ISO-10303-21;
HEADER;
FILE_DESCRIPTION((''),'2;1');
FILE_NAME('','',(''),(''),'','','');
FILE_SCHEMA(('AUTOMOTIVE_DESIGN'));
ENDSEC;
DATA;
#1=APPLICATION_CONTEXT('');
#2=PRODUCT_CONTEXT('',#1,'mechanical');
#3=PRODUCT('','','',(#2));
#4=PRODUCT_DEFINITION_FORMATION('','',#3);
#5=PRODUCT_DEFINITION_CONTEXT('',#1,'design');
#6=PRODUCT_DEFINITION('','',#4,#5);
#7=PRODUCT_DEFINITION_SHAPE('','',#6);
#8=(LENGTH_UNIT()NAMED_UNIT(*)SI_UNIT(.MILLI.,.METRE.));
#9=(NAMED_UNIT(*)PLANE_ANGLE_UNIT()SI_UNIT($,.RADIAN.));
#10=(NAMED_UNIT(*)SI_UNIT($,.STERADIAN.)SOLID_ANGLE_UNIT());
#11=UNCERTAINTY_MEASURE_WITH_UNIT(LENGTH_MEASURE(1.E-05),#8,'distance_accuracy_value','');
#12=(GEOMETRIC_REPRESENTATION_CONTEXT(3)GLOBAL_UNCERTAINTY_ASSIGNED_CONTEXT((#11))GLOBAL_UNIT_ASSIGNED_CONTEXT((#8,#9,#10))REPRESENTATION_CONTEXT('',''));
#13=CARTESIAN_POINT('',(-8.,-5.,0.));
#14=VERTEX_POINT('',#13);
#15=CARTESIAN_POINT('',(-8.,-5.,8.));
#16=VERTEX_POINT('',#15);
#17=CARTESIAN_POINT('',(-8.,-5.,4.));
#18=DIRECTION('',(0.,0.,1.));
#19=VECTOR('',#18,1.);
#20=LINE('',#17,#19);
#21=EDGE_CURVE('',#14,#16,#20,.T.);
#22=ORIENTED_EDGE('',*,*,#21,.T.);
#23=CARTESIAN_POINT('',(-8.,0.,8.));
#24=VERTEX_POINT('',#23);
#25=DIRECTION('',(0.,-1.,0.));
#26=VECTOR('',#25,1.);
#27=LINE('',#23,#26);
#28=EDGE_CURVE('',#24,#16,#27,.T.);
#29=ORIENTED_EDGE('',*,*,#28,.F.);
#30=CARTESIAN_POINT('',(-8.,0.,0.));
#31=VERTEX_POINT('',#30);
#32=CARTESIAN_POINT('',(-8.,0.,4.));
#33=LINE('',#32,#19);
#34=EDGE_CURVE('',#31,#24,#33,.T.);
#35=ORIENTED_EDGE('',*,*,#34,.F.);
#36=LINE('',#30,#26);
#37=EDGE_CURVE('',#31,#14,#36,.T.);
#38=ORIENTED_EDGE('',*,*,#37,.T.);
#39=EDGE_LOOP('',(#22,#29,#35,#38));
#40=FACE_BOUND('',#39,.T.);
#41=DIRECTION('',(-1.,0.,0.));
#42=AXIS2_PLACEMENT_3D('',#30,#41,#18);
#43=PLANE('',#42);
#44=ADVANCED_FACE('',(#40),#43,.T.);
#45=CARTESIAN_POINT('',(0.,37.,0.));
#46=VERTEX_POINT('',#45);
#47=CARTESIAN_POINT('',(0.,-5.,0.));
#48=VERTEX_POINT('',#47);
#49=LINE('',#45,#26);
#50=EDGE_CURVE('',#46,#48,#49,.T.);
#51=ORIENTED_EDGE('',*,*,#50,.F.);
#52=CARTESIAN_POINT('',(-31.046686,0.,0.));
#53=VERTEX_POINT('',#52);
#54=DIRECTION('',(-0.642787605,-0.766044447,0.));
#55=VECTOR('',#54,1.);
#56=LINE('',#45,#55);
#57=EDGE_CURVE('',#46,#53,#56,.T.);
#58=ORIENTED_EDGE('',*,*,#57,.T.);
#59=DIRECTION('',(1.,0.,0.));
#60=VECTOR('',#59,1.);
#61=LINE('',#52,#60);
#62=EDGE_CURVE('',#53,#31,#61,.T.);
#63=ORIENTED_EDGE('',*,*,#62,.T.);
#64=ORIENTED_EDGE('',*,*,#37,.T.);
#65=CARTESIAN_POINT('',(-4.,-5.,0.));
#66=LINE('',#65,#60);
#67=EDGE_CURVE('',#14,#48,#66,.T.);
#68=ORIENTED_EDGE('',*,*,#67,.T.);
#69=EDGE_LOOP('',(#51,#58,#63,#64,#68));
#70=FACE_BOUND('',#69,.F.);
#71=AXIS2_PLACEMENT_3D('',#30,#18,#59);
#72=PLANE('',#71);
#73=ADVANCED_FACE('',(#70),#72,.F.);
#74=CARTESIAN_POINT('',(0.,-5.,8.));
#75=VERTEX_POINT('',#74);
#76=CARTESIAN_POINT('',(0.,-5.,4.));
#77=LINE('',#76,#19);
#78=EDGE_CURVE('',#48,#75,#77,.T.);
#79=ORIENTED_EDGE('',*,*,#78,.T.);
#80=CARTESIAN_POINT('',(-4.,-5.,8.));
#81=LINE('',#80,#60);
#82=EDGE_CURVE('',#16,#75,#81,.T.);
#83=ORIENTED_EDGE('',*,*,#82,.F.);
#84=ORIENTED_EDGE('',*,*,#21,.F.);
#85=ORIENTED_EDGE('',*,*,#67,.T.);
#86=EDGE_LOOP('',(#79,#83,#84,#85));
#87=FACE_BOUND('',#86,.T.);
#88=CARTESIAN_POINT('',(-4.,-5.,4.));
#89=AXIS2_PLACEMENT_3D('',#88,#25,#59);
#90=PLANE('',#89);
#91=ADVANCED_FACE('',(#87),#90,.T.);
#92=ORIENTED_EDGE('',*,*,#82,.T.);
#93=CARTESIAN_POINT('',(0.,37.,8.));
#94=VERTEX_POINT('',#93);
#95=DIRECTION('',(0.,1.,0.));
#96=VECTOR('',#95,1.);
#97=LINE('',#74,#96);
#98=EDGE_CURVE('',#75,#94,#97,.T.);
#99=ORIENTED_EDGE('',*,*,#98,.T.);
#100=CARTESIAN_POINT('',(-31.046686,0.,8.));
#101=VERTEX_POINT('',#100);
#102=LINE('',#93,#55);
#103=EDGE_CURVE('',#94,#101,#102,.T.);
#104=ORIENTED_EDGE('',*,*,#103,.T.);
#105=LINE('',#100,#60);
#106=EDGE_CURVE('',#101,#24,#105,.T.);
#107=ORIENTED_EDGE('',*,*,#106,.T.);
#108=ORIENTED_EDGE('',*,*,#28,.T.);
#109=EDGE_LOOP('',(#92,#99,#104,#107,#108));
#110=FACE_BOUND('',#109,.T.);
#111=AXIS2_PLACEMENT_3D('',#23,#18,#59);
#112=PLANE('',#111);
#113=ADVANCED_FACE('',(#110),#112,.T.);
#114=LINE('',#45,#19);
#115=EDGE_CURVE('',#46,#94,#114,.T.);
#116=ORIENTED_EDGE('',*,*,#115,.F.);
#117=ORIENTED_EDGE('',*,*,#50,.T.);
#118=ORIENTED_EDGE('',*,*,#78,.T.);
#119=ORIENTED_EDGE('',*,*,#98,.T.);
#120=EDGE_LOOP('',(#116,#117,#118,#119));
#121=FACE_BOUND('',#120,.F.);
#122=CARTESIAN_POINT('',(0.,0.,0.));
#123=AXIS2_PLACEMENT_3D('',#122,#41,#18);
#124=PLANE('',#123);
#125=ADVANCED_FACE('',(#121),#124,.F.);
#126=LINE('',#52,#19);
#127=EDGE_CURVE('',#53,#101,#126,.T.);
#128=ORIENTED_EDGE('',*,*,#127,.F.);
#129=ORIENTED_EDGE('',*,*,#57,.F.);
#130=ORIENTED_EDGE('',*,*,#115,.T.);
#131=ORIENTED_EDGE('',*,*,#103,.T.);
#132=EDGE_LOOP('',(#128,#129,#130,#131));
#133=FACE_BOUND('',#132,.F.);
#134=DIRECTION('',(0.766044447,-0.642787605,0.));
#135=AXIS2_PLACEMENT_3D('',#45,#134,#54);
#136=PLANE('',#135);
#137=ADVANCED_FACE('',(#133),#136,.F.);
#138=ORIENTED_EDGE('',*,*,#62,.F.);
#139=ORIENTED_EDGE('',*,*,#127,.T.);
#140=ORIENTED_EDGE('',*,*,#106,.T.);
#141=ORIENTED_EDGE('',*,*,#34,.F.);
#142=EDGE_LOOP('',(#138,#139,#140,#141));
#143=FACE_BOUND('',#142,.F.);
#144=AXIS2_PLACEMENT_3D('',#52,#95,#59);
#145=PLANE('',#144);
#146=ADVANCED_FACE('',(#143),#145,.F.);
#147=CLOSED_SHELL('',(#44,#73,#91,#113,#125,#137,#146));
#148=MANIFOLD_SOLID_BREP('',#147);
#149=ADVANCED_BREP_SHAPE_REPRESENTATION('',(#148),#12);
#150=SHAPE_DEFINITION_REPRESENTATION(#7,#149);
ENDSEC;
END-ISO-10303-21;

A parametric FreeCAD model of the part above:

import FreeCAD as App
import Part
import Sketcher
from FreeCAD import Vector
Q = App.Units.Quantity

doc = App.newDocument("Part")
body = doc.addObject("PartDesign::Body", "Body")

# Sketch on XY plane
sketch1 = body.newObject("Sketcher::SketchObject", "Sketch")
sketch1.AttachmentSupport = (doc.getObject("XY_Plane"), [""])
sketch1.MapMode = "FlatFace"
sketch1.addGeometry([
    Part.LineSegment(Vector(-31, 0, 0), Vector(0, 0, 0)),
    Part.LineSegment(Vector(0, 0, 0), Vector(0, 37, 0)),
    Part.LineSegment(Vector(0, 37, 0), Vector(-31, 0, 0)),
], False)
sketch1.addConstraint([
    Sketcher.Constraint("Coincident", 0, 2, 1, 1),
    Sketcher.Constraint("Coincident", 1, 2, 2, 1),
    Sketcher.Constraint("Coincident", 2, 2, 0, 1),
    Sketcher.Constraint("Horizontal", 0),
    Sketcher.Constraint("Vertical", 1),
    Sketcher.Constraint("Coincident", 0, 2, -1, 1),
    Sketcher.Constraint("DistanceY", 1, 1, 1, 2, Q("37 mm")),
    Sketcher.Constraint("Angle", 2, Q("-130 deg")),
])
pad1 = body.newObject("PartDesign::Pad", "Pad")
pad1.Profile = sketch1
pad1.Length = 8

# Sketch on XZ plane
sketch2 = body.newObject("Sketcher::SketchObject", "Sketch001")
sketch2.AttachmentSupport = (doc.getObject("XZ_Plane"), [""])
sketch2.MapMode = "FlatFace"
sketch2.addGeometry([
    Part.LineSegment(Vector(-8, 8, 0), Vector(-8, 0, 0)),
    Part.LineSegment(Vector(-8, 0, 0), Vector(0, 0, 0)),
    Part.LineSegment(Vector(0, 0, 0), Vector(0, 8, 0)),
    Part.LineSegment(Vector(0, 8, 0), Vector(-8, 8, 0)),
], False)
sketch2.addConstraint([
    Sketcher.Constraint("Coincident", 0, 2, 1, 1),
    Sketcher.Constraint("Coincident", 1, 2, 2, 1),
    Sketcher.Constraint("Coincident", 2, 2, 3, 1),
    Sketcher.Constraint("Coincident", 3, 2, 0, 1),
    Sketcher.Constraint("Vertical", 0),
    Sketcher.Constraint("Horizontal", 1),
    Sketcher.Constraint("Vertical", 2),
    Sketcher.Constraint("Horizontal", 3),
    Sketcher.Constraint("Coincident", 1, 2, -1, 1),
    Sketcher.Constraint("Equal", 3, 0),
    Sketcher.Constraint("DistanceX", 1, 1, 1, 2, Q("8 mm")),
])
pad2 = body.newObject("PartDesign::Pad", "Pad001")
pad2.Profile = sketch2
pad2.Length = 5

doc.recompute()
